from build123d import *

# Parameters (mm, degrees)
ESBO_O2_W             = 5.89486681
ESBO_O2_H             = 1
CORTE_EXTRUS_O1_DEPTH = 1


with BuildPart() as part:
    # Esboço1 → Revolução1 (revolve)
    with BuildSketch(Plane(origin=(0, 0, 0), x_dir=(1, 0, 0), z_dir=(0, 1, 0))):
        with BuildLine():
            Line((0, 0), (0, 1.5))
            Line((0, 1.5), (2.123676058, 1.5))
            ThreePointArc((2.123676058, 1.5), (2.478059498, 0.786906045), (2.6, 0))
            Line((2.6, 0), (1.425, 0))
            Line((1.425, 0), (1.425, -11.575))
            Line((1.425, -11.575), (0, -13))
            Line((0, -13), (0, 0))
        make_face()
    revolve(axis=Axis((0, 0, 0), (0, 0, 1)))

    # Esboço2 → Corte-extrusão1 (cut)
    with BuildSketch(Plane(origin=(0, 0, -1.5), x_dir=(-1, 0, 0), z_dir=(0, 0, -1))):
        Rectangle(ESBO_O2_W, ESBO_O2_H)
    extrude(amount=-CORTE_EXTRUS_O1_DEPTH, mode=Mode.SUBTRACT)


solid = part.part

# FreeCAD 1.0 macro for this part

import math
import FreeCAD as App
import Part
import Sketcher
from FreeCAD import Vector
Q = App.Units.Quantity

doc = App.newDocument("Part")
body = doc.addObject("PartDesign::Body", "Body")

# Sketch on XZ plane
sketch1 = doc.addObject("Sketcher::SketchObject", "Sketch")
body.addObject(sketch1)
sketch1.AttachmentSupport = (doc.XZ_Plane, [""])
sketch1.MapMode = "FlatFace"
sketch1.addGeometry([
    Part.LineSegment(Vector(2.1, -1.5, 0), Vector(0, -1.5, 0)),  # 0
    Part.LineSegment(Vector(0, -1.5, 0), Vector(0, 13, 0)),  # 1
    Part.LineSegment(Vector(0, 13, 0), Vector(1.4, 11.6, 0)),  # 2
    Part.LineSegment(Vector(1.4, 11.6, 0), Vector(1.4, 0, 0)),  # 3
    Part.LineSegment(Vector(1.4, 0, 0), Vector(2.6, 0, 0)),  # 4
    Part.ArcOfCircle(Part.Circle(Vector(0, 0, 0), Vector(0, 0, 1), 2.6), math.radians(-35), math.radians(0)),  # 5
], False)
sketch1.addConstraint([
    Sketcher.Constraint("Coincident", 0, 2, 1, 1),
    Sketcher.Constraint("Coincident", 1, 2, 2, 1),
    Sketcher.Constraint("Coincident", 2, 2, 3, 1),
    Sketcher.Constraint("Coincident", 3, 2, 4, 1),
    Sketcher.Constraint("Coincident", 4, 2, 5, 2),
    Sketcher.Constraint("Coincident", 5, 1, 0, 1),
    Sketcher.Constraint("Horizontal", 0),
    Sketcher.Constraint("Vertical", 1),
    Sketcher.Constraint("Vertical", 3),
    Sketcher.Constraint("Horizontal", 4),
    Sketcher.Constraint("Coincident", 5, 3, -1, 1),
    Sketcher.Constraint("PointOnObject", 0, 2, -2),
    Sketcher.Constraint("PointOnObject", 3, 2, -1),
    Sketcher.Constraint("Radius", 5, Q("2.6 mm")),
    Sketcher.Constraint("Angle", 2, Q("-45 deg")),
    Sketcher.Constraint("DistanceY", 1, 1, 1, 2, Q("14.5 mm")),
    Sketcher.Constraint("DistanceY", -1, 1, 1, 2, Q("13 mm")),
    Sketcher.Constraint("DistanceX", 4, 1, 4, 2, Q("1.175 mm")),
])
revolution = doc.addObject("PartDesign::Revolution", "Revolution")
body.addObject(revolution)
revolution.Profile = sketch1
revolution.ReferenceAxis = (sketch1, ["V_Axis"])
revolution.Angle = 360

# Sketch on XY plane
sketch2 = doc.addObject("Sketcher::SketchObject", "Sketch001")
body.addObject(sketch2)
sketch2.AttachmentSupport = (doc.XY_Plane, [""])
sketch2.MapMode = "FlatFace"
sketch2.AttachmentOffset = App.Placement(Vector(0, 0, -1.5), App.Rotation())
sketch2.addGeometry([
    Part.LineSegment(Vector(2.9, 0.5, 0), Vector(2.9, -0.5, 0)),
    Part.LineSegment(Vector(2.9, -0.5, 0), Vector(-2.9, -0.5, 0)),
    Part.LineSegment(Vector(-2.9, -0.5, 0), Vector(-2.9, 0.5, 0)),
    Part.LineSegment(Vector(-2.9, 0.5, 0), Vector(2.9, 0.5, 0)),
], False)
sketch2.addConstraint([
    Sketcher.Constraint("Coincident", 0, 2, 1, 1),
    Sketcher.Constraint("Coincident", 1, 2, 2, 1),
    Sketcher.Constraint("Coincident", 2, 2, 3, 1),
    Sketcher.Constraint("Coincident", 3, 2, 0, 1),
    Sketcher.Constraint("Vertical", 0),
    Sketcher.Constraint("Horizontal", 1),
    Sketcher.Constraint("Vertical", 2),
    Sketcher.Constraint("Horizontal", 3),
    Sketcher.Constraint("Symmetric", 0, 2, 2, 2, -1, 1),
    Sketcher.Constraint("DistanceY", 0, 2, 0, 1, Q("1 mm")),
    Sketcher.Constraint("DistanceX", 1, 2, 1, 1, Q("5.894867 mm")),
])
pocket1 = doc.addObject("PartDesign::Pocket", "Pocket")
body.addObject(pocket1)
pocket1.Profile = sketch2
pocket1.Length = 1
pocket1.Reversed = True

doc.recompute()
